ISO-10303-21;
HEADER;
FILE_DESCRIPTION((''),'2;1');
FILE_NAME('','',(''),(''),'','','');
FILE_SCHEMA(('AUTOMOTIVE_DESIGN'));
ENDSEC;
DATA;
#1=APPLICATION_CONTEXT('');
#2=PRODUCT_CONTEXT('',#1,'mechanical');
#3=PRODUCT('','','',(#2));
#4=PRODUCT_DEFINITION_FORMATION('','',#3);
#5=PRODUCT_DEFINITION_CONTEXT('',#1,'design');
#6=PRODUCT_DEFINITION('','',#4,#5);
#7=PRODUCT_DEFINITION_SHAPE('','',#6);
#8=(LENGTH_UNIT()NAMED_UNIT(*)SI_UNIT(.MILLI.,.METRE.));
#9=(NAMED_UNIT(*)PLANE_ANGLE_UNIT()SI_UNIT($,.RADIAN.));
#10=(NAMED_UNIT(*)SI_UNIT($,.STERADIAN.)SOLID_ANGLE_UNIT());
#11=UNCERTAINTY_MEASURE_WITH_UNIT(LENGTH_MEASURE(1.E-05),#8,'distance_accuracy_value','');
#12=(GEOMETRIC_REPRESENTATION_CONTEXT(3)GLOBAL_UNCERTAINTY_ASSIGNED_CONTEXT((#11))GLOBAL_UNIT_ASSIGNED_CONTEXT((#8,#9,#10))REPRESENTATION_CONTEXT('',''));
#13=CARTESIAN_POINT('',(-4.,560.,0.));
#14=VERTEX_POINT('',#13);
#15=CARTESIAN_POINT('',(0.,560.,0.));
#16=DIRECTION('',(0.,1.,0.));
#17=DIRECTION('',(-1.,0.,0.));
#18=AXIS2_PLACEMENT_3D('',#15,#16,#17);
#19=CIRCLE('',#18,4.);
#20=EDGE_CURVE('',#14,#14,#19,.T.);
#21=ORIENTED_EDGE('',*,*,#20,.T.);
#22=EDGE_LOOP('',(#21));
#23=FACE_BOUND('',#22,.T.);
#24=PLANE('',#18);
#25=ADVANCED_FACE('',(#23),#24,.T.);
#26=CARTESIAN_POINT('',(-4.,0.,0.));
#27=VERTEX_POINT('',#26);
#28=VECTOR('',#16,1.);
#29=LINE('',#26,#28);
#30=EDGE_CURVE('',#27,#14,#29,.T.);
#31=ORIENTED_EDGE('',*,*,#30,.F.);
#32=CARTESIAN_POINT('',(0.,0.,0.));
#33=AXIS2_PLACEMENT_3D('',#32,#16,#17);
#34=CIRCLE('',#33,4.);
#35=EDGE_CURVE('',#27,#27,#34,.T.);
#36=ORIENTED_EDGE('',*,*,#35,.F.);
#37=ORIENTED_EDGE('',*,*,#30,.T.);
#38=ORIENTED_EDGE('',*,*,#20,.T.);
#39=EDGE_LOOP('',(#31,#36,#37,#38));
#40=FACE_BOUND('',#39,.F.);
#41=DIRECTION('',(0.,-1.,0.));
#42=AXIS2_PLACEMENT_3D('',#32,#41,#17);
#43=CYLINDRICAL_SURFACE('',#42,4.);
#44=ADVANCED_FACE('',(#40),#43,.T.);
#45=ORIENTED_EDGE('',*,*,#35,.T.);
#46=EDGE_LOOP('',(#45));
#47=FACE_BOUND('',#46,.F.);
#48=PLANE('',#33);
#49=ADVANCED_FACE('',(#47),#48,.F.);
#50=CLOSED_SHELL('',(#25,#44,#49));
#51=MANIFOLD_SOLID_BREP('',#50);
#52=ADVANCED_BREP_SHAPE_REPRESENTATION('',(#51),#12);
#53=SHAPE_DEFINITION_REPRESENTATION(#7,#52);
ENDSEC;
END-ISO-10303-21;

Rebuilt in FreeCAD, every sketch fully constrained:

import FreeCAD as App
import Part
import Sketcher
Q = App.Units.Quantity

doc = App.newDocument("Part")
body = doc.addObject("PartDesign::Body", "Body")

# Sketch on XZ plane
sketch1 = doc.addObject("Sketcher::SketchObject", "Sketch")
body.addObject(sketch1)
sketch1.AttachmentSupport = (doc.XZ_Plane, [""])
sketch1.MapMode = "FlatFace"
sketch1.addGeometry(Part.Circle(App.Vector(0, 0, 0), App.Vector(0, 0, 1), 4), False)
sketch1.addConstraint([
    Sketcher.Constraint("Coincident", 0, 3, -1, 1),
    Sketcher.Constraint("Diameter", 0, Q("8 mm")),
])
pad1 = doc.addObject("PartDesign::Pad", "Pad")
body.addObject(pad1)
pad1.Profile = sketch1
pad1.Length = 560
pad1.Reversed = True

doc.recompute()
